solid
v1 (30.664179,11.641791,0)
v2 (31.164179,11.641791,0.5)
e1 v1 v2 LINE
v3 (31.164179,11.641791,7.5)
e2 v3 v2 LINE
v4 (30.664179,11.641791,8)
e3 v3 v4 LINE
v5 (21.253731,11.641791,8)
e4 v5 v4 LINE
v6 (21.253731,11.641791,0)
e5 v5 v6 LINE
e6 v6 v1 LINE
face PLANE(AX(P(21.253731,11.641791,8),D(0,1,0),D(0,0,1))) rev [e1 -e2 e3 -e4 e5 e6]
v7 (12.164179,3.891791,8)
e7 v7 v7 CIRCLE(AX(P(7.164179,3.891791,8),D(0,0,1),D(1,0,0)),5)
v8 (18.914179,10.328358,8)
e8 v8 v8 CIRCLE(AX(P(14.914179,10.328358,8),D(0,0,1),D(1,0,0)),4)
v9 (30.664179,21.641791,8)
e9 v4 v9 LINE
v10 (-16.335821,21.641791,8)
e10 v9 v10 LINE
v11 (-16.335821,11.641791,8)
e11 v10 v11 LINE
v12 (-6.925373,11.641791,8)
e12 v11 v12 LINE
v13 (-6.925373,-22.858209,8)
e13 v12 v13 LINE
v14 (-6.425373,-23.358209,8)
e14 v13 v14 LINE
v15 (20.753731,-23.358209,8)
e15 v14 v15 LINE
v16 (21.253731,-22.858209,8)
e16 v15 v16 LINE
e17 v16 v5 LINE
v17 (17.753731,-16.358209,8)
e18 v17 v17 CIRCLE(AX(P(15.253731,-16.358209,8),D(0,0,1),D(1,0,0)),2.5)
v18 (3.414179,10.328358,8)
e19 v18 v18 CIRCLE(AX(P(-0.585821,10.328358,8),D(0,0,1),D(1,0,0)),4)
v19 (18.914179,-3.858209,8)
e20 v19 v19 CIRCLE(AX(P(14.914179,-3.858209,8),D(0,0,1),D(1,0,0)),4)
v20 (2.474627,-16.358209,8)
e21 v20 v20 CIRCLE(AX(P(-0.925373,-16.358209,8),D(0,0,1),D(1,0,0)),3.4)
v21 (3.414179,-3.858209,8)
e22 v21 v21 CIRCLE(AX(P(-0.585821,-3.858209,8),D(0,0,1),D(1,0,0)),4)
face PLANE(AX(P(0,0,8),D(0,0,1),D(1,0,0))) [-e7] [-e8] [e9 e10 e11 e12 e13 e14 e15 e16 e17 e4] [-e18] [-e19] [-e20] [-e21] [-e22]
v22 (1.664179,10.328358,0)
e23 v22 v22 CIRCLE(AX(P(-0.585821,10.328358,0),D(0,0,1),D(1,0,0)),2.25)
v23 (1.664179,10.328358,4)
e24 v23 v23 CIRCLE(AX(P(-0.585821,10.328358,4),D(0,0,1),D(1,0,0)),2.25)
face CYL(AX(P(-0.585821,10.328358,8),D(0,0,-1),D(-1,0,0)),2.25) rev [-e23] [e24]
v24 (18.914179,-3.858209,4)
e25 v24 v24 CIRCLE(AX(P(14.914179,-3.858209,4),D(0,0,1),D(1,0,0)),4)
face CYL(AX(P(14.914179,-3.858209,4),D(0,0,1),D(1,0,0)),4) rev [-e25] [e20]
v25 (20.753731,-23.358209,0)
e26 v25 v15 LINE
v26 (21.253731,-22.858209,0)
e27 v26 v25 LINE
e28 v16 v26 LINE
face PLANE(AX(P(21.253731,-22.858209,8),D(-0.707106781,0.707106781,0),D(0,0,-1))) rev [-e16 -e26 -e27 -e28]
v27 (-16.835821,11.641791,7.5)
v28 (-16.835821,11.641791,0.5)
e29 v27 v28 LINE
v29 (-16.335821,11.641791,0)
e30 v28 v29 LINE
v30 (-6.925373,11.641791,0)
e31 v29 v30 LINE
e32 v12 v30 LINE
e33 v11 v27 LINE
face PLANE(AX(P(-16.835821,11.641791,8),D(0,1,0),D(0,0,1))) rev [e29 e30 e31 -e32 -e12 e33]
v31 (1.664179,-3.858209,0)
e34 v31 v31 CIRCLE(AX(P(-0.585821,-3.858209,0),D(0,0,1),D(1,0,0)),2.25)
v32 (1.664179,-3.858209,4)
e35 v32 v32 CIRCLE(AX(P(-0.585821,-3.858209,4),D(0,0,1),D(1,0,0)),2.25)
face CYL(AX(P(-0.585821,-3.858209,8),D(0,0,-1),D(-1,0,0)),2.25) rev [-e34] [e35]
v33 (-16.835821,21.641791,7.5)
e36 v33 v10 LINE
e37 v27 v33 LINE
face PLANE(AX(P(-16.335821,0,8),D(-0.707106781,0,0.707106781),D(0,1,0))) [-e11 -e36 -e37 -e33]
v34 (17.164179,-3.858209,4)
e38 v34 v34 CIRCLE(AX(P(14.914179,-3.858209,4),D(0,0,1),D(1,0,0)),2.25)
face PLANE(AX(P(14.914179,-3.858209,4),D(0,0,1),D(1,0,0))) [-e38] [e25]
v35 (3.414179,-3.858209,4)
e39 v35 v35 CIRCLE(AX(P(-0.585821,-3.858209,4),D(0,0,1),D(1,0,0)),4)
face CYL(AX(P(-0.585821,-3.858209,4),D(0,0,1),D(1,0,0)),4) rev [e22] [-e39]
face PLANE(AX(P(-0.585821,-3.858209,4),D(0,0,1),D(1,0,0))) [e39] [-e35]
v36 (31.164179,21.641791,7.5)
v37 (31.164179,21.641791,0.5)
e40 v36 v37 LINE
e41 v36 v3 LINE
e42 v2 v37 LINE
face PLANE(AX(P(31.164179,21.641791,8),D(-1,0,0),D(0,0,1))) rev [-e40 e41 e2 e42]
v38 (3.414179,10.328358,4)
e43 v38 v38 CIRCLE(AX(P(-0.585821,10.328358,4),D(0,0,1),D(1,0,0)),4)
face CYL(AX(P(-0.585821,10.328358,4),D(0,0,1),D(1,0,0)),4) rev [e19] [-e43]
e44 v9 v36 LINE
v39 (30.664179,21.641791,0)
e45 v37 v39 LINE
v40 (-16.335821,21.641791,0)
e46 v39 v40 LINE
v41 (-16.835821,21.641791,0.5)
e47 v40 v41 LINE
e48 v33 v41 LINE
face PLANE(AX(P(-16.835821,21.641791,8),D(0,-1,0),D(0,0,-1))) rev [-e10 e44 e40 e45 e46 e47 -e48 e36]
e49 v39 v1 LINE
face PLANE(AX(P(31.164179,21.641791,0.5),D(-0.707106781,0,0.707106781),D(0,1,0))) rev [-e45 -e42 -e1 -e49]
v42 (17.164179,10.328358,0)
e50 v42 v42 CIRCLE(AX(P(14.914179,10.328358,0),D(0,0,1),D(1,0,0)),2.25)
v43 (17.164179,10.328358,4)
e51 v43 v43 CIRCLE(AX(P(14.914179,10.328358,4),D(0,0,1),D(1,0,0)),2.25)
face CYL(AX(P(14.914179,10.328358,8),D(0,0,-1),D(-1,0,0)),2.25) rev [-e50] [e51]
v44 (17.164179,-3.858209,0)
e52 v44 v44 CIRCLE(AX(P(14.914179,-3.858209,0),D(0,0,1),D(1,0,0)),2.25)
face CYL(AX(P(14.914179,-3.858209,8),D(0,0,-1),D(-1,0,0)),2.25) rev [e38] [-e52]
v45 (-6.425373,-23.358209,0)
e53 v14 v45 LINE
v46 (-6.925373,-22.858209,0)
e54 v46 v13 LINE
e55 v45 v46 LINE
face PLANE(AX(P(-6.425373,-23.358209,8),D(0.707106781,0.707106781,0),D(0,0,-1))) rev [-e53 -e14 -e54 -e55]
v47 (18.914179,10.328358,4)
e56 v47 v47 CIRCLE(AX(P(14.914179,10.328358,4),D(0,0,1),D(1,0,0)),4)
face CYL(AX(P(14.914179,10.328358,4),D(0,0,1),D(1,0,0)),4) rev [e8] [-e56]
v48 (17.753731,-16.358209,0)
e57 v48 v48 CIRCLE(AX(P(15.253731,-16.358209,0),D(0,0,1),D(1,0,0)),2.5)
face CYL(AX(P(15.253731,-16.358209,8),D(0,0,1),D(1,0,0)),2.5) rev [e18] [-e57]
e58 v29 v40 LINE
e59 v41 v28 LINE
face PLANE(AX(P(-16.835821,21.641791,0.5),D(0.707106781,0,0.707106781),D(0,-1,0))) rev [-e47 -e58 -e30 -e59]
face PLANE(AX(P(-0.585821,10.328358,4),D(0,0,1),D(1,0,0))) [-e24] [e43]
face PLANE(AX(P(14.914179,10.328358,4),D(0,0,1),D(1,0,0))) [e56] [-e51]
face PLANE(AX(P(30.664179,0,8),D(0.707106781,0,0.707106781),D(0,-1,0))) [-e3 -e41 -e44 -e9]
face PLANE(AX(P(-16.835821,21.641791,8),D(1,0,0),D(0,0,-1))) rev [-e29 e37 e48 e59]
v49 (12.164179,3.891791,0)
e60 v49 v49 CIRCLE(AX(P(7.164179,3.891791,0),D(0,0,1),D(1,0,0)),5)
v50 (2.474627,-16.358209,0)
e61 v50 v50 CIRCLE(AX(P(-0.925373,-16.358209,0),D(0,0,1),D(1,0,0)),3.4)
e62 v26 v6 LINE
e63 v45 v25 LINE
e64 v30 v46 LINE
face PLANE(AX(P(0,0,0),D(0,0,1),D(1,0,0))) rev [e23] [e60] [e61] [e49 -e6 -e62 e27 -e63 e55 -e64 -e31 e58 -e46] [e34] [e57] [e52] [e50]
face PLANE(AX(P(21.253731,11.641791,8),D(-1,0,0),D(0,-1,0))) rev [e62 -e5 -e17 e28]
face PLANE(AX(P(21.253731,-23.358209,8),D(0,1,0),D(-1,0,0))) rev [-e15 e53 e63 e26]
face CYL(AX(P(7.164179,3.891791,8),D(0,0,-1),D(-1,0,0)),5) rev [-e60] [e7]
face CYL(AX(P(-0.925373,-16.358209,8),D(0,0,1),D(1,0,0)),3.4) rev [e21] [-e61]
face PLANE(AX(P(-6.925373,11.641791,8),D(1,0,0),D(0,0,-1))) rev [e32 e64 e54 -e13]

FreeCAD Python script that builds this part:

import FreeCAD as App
import Part
import Sketcher


def edges_at(feature, points):
    """Names of the edges that pass closest to the given points."""
    edges = feature.Shape.Edges
    near = lambda p: min(range(len(edges)), key=lambda i: edges[i].distToShape(Part.Vertex(*p))[0])
    return sorted({f"Edge{near(p) + 1}" for p in points})


def add_polygon(sketch, points):
    """Adds a closed chain of lines whose ends are joined by coincident constraints."""
    first, n = sketch.GeometryCount, len(points)
    for a, b in zip(points, points[1:] + points[:1]):
        sketch.addGeometry(Part.LineSegment(App.Vector(*a, 0), App.Vector(*b, 0)), False)
    for i in range(n):
        sketch.addConstraint(Sketcher.Constraint("Coincident", first + i, 2, first + (i + 1) % n, 1))

doc = App.newDocument("Part")
body = doc.addObject("PartDesign::Body", "Body")

# Sketch on XY plane
sketch1 = body.newObject("Sketcher::SketchObject", "Sketch")
sketch1.AttachmentSupport = (doc.getObject("XY_Plane"), [""])
sketch1.MapMode = "FlatFace"
add_polygon(sketch1, [(21.253731, 11.641791), (31.164179, 11.641791), (31.164179, 21.641791), (-16.835821, 21.641791), (-16.835821, 11.641791), (-6.925373, 11.641791), (-6.925373, -23.358209), (21.253731, -23.358209)])  # lines 0-7
sketch1.addGeometry(Part.Circle(App.Vector(-0.585821, -3.858209, 0), App.Vector(0, 0, 1), 2.25), False)  # 8
sketch1.addGeometry(Part.Circle(App.Vector(14.914179, -3.858209, 0), App.Vector(0, 0, 1), 2.25), False)  # 9
sketch1.addGeometry(Part.Circle(App.Vector(-0.585821, 10.328358, 0), App.Vector(0, 0, 1), 2.25), False)  # 10
sketch1.addGeometry(Part.Circle(App.Vector(7.164179, 3.891791, 0), App.Vector(0, 0, 1), 5), False)  # 11
sketch1.addGeometry(Part.Circle(App.Vector(14.914179, 10.328358, 0), App.Vector(0, 0, 1), 2.25), False)  # 12
sketch1.addConstraint([
    Sketcher.Constraint("Horizontal", 0),
    Sketcher.Constraint("Vertical", 1),
    Sketcher.Constraint("Horizontal", 2),
    Sketcher.Constraint("Vertical", 3),
    Sketcher.Constraint("Horizontal", 4),
    Sketcher.Constraint("Vertical", 5),
    Sketcher.Constraint("Horizontal", 6),
    Sketcher.Constraint("Vertical", 7),
    Sketcher.Constraint("Equal", 8, 9),
    Sketcher.Constraint("Equal", 9, 10),
    Sketcher.Constraint("Equal", 10, 12),
    Sketcher.Constraint("Horizontal", 8, 3, 9, 3),
    Sketcher.Constraint("Horizontal", 10, 3, 12, 3),
    Sketcher.Constraint("Horizontal", 0, 2, 3, 2),
    Sketcher.Constraint("Vertical", 8, 3, 10, 3),
    Sketcher.Constraint("Vertical", 9, 3, 12, 3),
    Sketcher.Constraint("Equal", 0, 4),
    Sketcher.Constraint("Diameter", 11, 10.0),
    Sketcher.Constraint("Diameter", 8, 4.5),
    Sketcher.Constraint("DistanceX", 2, 2, 2, 1, 48.0),
    Sketcher.Constraint("DistanceY", 1, 1, 1, 2, 10.0),
    Sketcher.Constraint("DistanceY", 5, 2, 5, 1, 35.0),
    Sketcher.Constraint("DistanceX", 11, 3, 0, 2, 24.0),
    Sketcher.Constraint("DistanceX", 8, 3, 9, 3, 15.5),
    Sketcher.Constraint("DistanceY", 9, 3, 0, 2, 15.5),
    Sketcher.Constraint("DistanceX", 10, 3, 11, 3, 7.75),
    Sketcher.Constraint("DistanceY", 8, 3, 11, 3, 7.75),
    Sketcher.Constraint("DistanceX", 0, 1, 0, 2, 9.910448),
    Sketcher.Constraint("DistanceX", 8, 3, -1, 1, 0.585821),
    Sketcher.Constraint("DistanceY", 8, 3, -1, 1, 3.858209),
    Sketcher.Constraint("DistanceY", -1, 1, 10, 3, 10.328358),
])
pad1 = body.newObject("PartDesign::Pad", "Pad")
pad1.Profile = sketch1
pad1.Length = 8

# Sketch on XY plane
sketch2 = body.newObject("Sketcher::SketchObject", "Sketch001")
sketch2.AttachmentSupport = (doc.getObject("XY_Plane"), [""])
sketch2.MapMode = "FlatFace"
sketch2.AttachmentOffset = App.Placement(App.Vector(0, 0, 8), App.Rotation())
sketch2.addGeometry([
    Part.Circle(App.Vector(-0.585821, 10.328358, 0), App.Vector(0, 0, 1), 4),
    Part.Circle(App.Vector(14.914179, 10.328358, 0), App.Vector(0, 0, 1), 4),
    Part.Circle(App.Vector(14.914179, -3.858209, 0), App.Vector(0, 0, 1), 4),
    Part.Circle(App.Vector(-0.585821, -3.858209, 0), App.Vector(0, 0, 1), 4),
], False)
sketch2.addConstraint([
    Sketcher.Constraint("Equal", 0, 1),
    Sketcher.Constraint("Equal", 1, 2),
    Sketcher.Constraint("Equal", 2, 3),
    Sketcher.Constraint("Horizontal", 0, 3, 1, 3),
    Sketcher.Constraint("Horizontal", 2, 3, 3, 3),
    Sketcher.Constraint("Vertical", 1, 3, 2, 3),
    Sketcher.Constraint("Vertical", 0, 3, 3, 3),
    Sketcher.Constraint("Diameter", 0, 8.0),
    Sketcher.Constraint("DistanceX", 0, 3, 1, 3, 15.5),
    Sketcher.Constraint("DistanceX", 0, 3, -1, 1, 0.585821),
    Sketcher.Constraint("DistanceY", -1, 1, 0, 3, 10.328358),
    Sketcher.Constraint("DistanceY", 2, 3, -1, 1, 3.858209),
])
pocket1 = body.newObject("PartDesign::Pocket", "Pocket")
pocket1.Profile = sketch2
pocket1.Length = 4

# Sketch on XY plane
sketch3 = body.newObject("Sketcher::SketchObject", "Sketch002")
sketch3.AttachmentSupport = (doc.getObject("XY_Plane"), [""])
sketch3.MapMode = "FlatFace"
sketch3.AttachmentOffset = App.Placement(App.Vector(0, 0, 8), App.Rotation())
sketch3.addGeometry(Part.Circle(App.Vector(15.253731, -16.358209, 0), App.Vector(0, 0, 1), 2.5), False)
sketch3.addConstraint([
    Sketcher.Constraint("Diameter", 0, 5.0),
    Sketcher.Constraint("DistanceX", -1, 1, 0, 3, 15.253731),
    Sketcher.Constraint("DistanceY", 0, 3, -1, 1, 16.358209),
])
doc.recompute()
hole = body.newObject("PartDesign::Hole", "Hole")
hole.Profile = sketch3
hole.ThreadType = "None"
hole.Diameter = 5
hole.DepthType = "Dimension"
hole.Depth = 15
hole.DrillPoint = "Angled"
hole.DrillPointAngle = 118

# Sketch on XY plane
sketch4 = body.newObject("Sketcher::SketchObject", "Sketch003")
sketch4.AttachmentSupport = (doc.getObject("XY_Plane"), [""])
sketch4.MapMode = "FlatFace"
sketch4.AttachmentOffset = App.Placement(App.Vector(0, 0, 8), App.Rotation())
sketch4.addGeometry(Part.Circle(App.Vector(-0.925373, -16.358209, 0), App.Vector(0, 0, 1), 3.4), False)
sketch4.addConstraint([
    Sketcher.Constraint("Diameter", 0, 6.8),
    Sketcher.Constraint("DistanceY", 0, 3, -1, 1, 16.358209),
    Sketcher.Constraint("DistanceX", 0, 3, -1, 1, 0.925373),
])
doc.recompute()
hole2 = body.newObject("PartDesign::Hole", "Hole001")
hole2.Profile = sketch4
hole2.ThreadType = "None"
hole2.Diameter = 6.8
hole2.DepthType = "Dimension"
hole2.Depth = 19.75
hole2.DrillPoint = "Angled"
hole2.DrillPointAngle = 118
doc.recompute()

chamfer = body.newObject("PartDesign::Chamfer", "Chamfer")
chamfer.Base = (hole2, edges_at(hole2, [
    (-16.836, 16.642, 0),
    (31.164, 16.642, 8),
    (-16.836, 16.642, 8),
    (31.164, 16.642, 0),
]))
chamfer.Size = 0.5
doc.recompute()

chamfer2 = body.newObject("PartDesign::Chamfer", "Chamfer001")
chamfer2.Base = (chamfer, edges_at(chamfer, [(21.254, -23.358, 4), (-6.925, -23.358, 4)]))
chamfer2.Size = 0.5

doc.recompute()
